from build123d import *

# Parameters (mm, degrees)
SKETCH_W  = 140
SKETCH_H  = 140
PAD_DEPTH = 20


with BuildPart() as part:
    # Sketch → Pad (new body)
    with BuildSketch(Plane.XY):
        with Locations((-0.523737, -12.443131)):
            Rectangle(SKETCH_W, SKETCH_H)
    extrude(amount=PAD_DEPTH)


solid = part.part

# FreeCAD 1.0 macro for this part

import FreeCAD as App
import Part
import Sketcher

V = App.Vector

doc = App.newDocument("Part")
body = doc.addObject("PartDesign::Body", "Body")

# Sketch on XY plane
sketch1 = body.newObject("Sketcher::SketchObject", "Sketch")
sketch1.AttachmentSupport = (doc.getObject("XY_Plane"), [""])
sketch1.MapMode = "FlatFace"
sketch1.addGeometry([
    Part.LineSegment(V(-71, 58, 0), V(-71, -82, 0)),
    Part.LineSegment(V(-71, -82, 0), V(69, -82, 0)),
    Part.LineSegment(V(69, -82, 0), V(69, 58, 0)),
    Part.LineSegment(V(69, 58, 0), V(-71, 58, 0)),
], False)
sketch1.addConstraint([
    Sketcher.Constraint("Coincident", 0, 2, 1, 1),
    Sketcher.Constraint("Coincident", 1, 2, 2, 1),
    Sketcher.Constraint("Coincident", 2, 2, 3, 1),
    Sketcher.Constraint("Coincident", 3, 2, 0, 1),
    Sketcher.Constraint("Vertical", 0),
    Sketcher.Constraint("Horizontal", 1),
    Sketcher.Constraint("Vertical", 2),
    Sketcher.Constraint("Horizontal", 3),
    Sketcher.Constraint("Equal", 3, 0),
    Sketcher.Constraint("DistanceX", 1, 1, 1, 2, 140.0),
    Sketcher.Constraint("DistanceY", 0, 2, -1, 1, 82.443131),
    Sketcher.Constraint("DistanceX", 0, 2, -1, 1, 70.523737),
])
pad1 = body.newObject("PartDesign::Pad", "Pad")
pad1.Profile = sketch1
pad1.Length = 20

doc.recompute()
